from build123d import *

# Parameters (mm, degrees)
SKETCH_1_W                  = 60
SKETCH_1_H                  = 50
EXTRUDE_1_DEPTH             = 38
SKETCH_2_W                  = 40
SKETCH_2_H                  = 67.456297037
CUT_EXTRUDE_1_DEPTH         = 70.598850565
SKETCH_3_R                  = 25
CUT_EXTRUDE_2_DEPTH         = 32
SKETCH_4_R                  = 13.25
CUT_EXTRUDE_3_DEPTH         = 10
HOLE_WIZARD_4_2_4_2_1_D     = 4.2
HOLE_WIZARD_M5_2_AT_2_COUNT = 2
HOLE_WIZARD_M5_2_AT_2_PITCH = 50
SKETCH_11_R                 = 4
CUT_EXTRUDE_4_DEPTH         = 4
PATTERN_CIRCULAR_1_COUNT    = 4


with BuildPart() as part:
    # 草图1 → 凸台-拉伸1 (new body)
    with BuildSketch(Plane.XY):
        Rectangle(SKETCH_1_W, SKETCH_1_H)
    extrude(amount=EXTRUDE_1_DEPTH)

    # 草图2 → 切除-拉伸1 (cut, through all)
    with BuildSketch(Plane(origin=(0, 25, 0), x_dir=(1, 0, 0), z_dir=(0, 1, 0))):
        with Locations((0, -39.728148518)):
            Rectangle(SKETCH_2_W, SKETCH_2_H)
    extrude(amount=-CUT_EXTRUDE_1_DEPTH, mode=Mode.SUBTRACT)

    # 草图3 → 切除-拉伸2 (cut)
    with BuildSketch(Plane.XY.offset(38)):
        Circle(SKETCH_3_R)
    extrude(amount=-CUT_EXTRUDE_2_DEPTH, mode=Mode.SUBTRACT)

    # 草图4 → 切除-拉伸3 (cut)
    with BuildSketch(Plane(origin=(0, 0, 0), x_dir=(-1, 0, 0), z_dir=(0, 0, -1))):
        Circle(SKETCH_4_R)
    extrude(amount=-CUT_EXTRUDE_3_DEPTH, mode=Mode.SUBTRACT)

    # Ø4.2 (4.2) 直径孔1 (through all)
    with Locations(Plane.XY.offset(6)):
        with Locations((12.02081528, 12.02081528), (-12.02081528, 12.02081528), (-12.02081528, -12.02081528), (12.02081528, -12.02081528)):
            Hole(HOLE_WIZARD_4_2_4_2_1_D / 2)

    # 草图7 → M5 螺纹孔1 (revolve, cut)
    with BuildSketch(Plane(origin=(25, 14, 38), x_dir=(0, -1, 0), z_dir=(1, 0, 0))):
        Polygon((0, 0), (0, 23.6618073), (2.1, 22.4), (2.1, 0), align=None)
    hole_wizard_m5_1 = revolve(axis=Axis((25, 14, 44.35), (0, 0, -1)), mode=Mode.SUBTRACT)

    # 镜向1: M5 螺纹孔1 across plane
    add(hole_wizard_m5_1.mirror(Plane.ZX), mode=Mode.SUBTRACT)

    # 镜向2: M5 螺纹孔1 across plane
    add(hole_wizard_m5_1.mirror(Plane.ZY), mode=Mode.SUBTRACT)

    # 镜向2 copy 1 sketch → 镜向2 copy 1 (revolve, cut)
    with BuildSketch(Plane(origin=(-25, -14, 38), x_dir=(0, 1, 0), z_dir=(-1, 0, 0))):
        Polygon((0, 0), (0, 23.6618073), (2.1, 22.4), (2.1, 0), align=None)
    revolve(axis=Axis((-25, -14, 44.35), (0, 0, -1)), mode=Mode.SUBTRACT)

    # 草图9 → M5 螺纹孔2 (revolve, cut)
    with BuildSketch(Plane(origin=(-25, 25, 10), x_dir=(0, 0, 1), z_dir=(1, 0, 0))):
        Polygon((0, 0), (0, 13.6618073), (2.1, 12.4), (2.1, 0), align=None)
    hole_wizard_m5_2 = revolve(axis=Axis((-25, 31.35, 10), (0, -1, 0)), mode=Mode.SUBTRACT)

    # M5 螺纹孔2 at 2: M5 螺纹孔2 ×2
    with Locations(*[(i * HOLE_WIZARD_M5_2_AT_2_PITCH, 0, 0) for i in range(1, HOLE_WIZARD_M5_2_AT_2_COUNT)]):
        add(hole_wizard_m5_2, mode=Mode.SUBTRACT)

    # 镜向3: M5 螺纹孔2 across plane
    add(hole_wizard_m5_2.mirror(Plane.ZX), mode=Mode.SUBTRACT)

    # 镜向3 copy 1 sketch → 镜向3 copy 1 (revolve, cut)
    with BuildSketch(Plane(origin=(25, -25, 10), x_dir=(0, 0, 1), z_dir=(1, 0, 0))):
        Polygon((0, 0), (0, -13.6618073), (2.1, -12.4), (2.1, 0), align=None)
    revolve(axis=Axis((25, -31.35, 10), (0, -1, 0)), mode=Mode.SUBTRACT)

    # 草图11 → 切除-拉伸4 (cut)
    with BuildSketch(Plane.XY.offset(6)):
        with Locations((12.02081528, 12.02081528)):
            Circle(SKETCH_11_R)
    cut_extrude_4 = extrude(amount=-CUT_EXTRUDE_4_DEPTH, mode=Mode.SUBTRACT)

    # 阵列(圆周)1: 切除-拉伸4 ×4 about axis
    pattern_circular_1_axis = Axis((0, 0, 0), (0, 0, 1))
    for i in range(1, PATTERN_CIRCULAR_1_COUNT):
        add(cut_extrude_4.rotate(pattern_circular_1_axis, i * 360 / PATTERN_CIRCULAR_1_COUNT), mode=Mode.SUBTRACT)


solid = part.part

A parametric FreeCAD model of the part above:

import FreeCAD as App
import Part
import Sketcher

V = App.Vector
Q = App.Units.Quantity


def add_polygon(sketch, points):
    """Adds a closed chain of lines whose ends are joined by coincident constraints."""
    first, n = sketch.GeometryCount, len(points)
    for a, b in zip(points, points[1:] + points[:1]):
        sketch.addGeometry(Part.LineSegment(App.Vector(*a, 0), App.Vector(*b, 0)), False)
    for i in range(n):
        sketch.addConstraint(Sketcher.Constraint("Coincident", first + i, 2, first + (i + 1) % n, 1))

doc = App.newDocument("Part")
body = doc.addObject("PartDesign::Body", "Body")

# Sketch on XY plane
sketch1 = doc.addObject("Sketcher::SketchObject", "Sketch")
body.addObject(sketch1)
sketch1.AttachmentSupport = (doc.XY_Plane, [""])
sketch1.MapMode = "FlatFace"
add_polygon(sketch1, [(-30, 25), (-30, -25), (30, -25), (30, 25)])  # lines 0-3
sketch1.addConstraint([
    Sketcher.Constraint("Vertical", 0),
    Sketcher.Constraint("Horizontal", 1),
    Sketcher.Constraint("Vertical", 2),
    Sketcher.Constraint("Horizontal", 3),
    Sketcher.Constraint("Symmetric", 0, 2, 2, 2, -1, 1),
    Sketcher.Constraint("DistanceX", 1, 1, 1, 2, Q("60 mm")),
    Sketcher.Constraint("DistanceY", 0, 2, 0, 1, Q("50 mm")),
])
pad1 = doc.addObject("PartDesign::Pad", "Pad")
body.addObject(pad1)
pad1.Profile = sketch1
pad1.Length = 38

# Sketch on XZ plane
sketch2 = doc.addObject("Sketcher::SketchObject", "Sketch001")
body.addObject(sketch2)
sketch2.AttachmentSupport = (doc.XZ_Plane, [""])
sketch2.MapMode = "FlatFace"
sketch2.AttachmentOffset = App.Placement(V(0, 0, -25), App.Rotation())
add_polygon(sketch2, [(-20, 6), (-20, 73), (20, 73), (20, 6)])  # lines 0-3
sketch2.addConstraint([
    Sketcher.Constraint("Vertical", 0),
    Sketcher.Constraint("Horizontal", 1),
    Sketcher.Constraint("Vertical", 2),
    Sketcher.Constraint("Horizontal", 3),
    Sketcher.Constraint("DistanceX", 1, 1, 1, 2, Q("40 mm")),
    Sketcher.Constraint("DistanceX", 0, 2, -1, 1, Q("20 mm")),
    Sketcher.Constraint("DistanceY", -1, 1, 2, 2, Q("6 mm")),
    Sketcher.Constraint("DistanceY", 0, 1, 0, 2, Q("67.456297 mm")),
])
pocket1 = doc.addObject("PartDesign::Pocket", "Pocket")
body.addObject(pocket1)
pocket1.Profile = sketch2
pocket1.Type = "ThroughAll"
pocket1.Reversed = True

# Sketch on XY plane
sketch3 = doc.addObject("Sketcher::SketchObject", "Sketch002")
body.addObject(sketch3)
sketch3.AttachmentSupport = (doc.XY_Plane, [""])
sketch3.MapMode = "FlatFace"
sketch3.AttachmentOffset = App.Placement(V(0, 0, 38), App.Rotation())
sketch3.addGeometry(Part.Circle(V(0, 0, 0), V(0, 0, 1), 25), False)
sketch3.addConstraint([
    Sketcher.Constraint("Coincident", 0, 3, -1, 1),
    Sketcher.Constraint("Diameter", 0, Q("50 mm")),
])
pocket2 = doc.addObject("PartDesign::Pocket", "Pocket001")
body.addObject(pocket2)
pocket2.Profile = sketch3
pocket2.Length = 32

# Sketch on XY plane
sketch4 = doc.addObject("Sketcher::SketchObject", "Sketch003")
body.addObject(sketch4)
sketch4.AttachmentSupport = (doc.XY_Plane, [""])
sketch4.MapMode = "FlatFace"
sketch4.addGeometry(Part.Circle(V(0, 0, 0), V(0, 0, 1), 13), False)
sketch4.addConstraint([
    Sketcher.Constraint("Coincident", 0, 3, -1, 1),
    Sketcher.Constraint("Diameter", 0, Q("26.5 mm")),
])
pocket3 = doc.addObject("PartDesign::Pocket", "Pocket002")
body.addObject(pocket3)
pocket3.Profile = sketch4
pocket3.Length = 10
pocket3.Reversed = True

# Sketch on XY plane
sketch5 = doc.addObject("Sketcher::SketchObject", "Sketch004")
body.addObject(sketch5)
sketch5.AttachmentSupport = (doc.XY_Plane, [""])
sketch5.MapMode = "FlatFace"
sketch5.AttachmentOffset = App.Placement(V(0, 0, 6), App.Rotation())
sketch5.addGeometry([
    Part.Circle(V(12, 12, 0), V(0, 0, 1), 2.1),
    Part.Circle(V(-12, 12, 0), V(0, 0, 1), 2.1),
    Part.Circle(V(-12, -12, 0), V(0, 0, 1), 2.1),
    Part.Circle(V(12, -12, 0), V(0, 0, 1), 2.1),
], False)
sketch5.addConstraint([
    Sketcher.Constraint("Equal", 0, 1),
    Sketcher.Constraint("Equal", 1, 2),
    Sketcher.Constraint("Equal", 2, 3),
    Sketcher.Constraint("Symmetric", 0, 3, 2, 3, -1, 1),
    Sketcher.Constraint("Symmetric", 1, 3, 3, 3, -1, 1),
    Sketcher.Constraint("Symmetric", 0, 3, 1, 3, -2),
    Sketcher.Constraint("Diameter", 0, Q("4.2 mm")),
    Sketcher.Constraint("DistanceX", 1, 3, 0, 3, Q("24.041631 mm")),
    Sketcher.Constraint("DistanceY", 2, 3, 1, 3, Q("24.041631 mm")),
])
doc.recompute()
hole = doc.addObject("PartDesign::Hole", "Hole")
body.addObject(hole)
hole.Profile = sketch5
hole.ThreadType = "None"
hole.Diameter = 4.2
hole.DepthType = "ThroughAll"

# Sketch on YZ plane
sketch6 = doc.addObject("Sketcher::SketchObject", "Sketch005")
body.addObject(sketch6)
sketch6.AttachmentSupport = (doc.YZ_Plane, [""])
sketch6.MapMode = "FlatFace"
sketch6.AttachmentOffset = App.Placement(V(0, 0, 25), App.Rotation())
add_polygon(sketch6, [(14, 14.3), (14, 38), (11.9, 38), (11.9, 15.6)])  # lines 0-3
sketch6.addGeometry(Part.LineSegment(V(14, 38, 0), V(14, 14.3, 0)), True)  # axis
sketch6.addConstraint([
    Sketcher.Constraint("Vertical", 0),
    Sketcher.Constraint("Horizontal", 1),
    Sketcher.Constraint("Vertical", 2),
    Sketcher.Constraint("Vertical", 4),
    Sketcher.Constraint("Coincident", 4, 1, 0, 2),
    Sketcher.Constraint("Equal", 0, 4),
    Sketcher.Constraint("Angle", 3, Q("-31 deg")),
    Sketcher.Constraint("DistanceX", 1, 2, 1, 1, Q("2.1 mm")),
    Sketcher.Constraint("DistanceY", 2, 2, 2, 1, Q("22.4 mm")),
    Sketcher.Constraint("DistanceX", -1, 1, 0, 2, Q("14 mm")),
    Sketcher.Constraint("DistanceY", -1, 1, 0, 2, Q("38 mm")),
])
groove = doc.addObject("PartDesign::Groove", "Groove")
body.addObject(groove)
groove.Profile = sketch6
groove.ReferenceAxis = (sketch6, ["Axis0"])
groove.Angle = 360
doc.recompute()

mirrored = doc.addObject("PartDesign::Mirrored", "Mirrored")
body.addObject(mirrored)
mirrored.Originals = [groove]
mirrored.MirrorPlane = (doc.XZ_Plane, [""])
body.Tip = mirrored
doc.recompute()

mirrored2 = doc.addObject("PartDesign::Mirrored", "Mirrored001")
body.addObject(mirrored2)
mirrored2.Originals = [groove]
mirrored2.MirrorPlane = (doc.YZ_Plane, [""])
body.Tip = mirrored2

# Sketch on YZ plane
sketch7 = doc.addObject("Sketcher::SketchObject", "Sketch006")
body.addObject(sketch7)
sketch7.AttachmentSupport = (doc.YZ_Plane, [""])
sketch7.MapMode = "FlatFace"
sketch7.AttachmentOffset = App.Placement(V(0, 0, -25), App.Rotation())
add_polygon(sketch7, [(-14, 14.3), (-14, 38), (-11.9, 38), (-11.9, 15.6)])  # lines 0-3
sketch7.addGeometry(Part.LineSegment(V(-14, 38, 0), V(-14, 14.3, 0)), True)  # axis
sketch7.addConstraint([
    Sketcher.Constraint("Vertical", 0),
    Sketcher.Constraint("Horizontal", 1),
    Sketcher.Constraint("Vertical", 2),
    Sketcher.Constraint("Vertical", 4),
    Sketcher.Constraint("Coincident", 4, 1, 0, 2),
    Sketcher.Constraint("Equal", 0, 4),
    Sketcher.Constraint("Angle", 3, Q("-149 deg")),
    Sketcher.Constraint("DistanceX", 1, 1, 1, 2, Q("2.1 mm")),
    Sketcher.Constraint("DistanceY", 2, 2, 2, 1, Q("22.4 mm")),
    Sketcher.Constraint("DistanceX", 0, 2, -1, 1, Q("14 mm")),
    Sketcher.Constraint("DistanceY", -1, 1, 0, 2, Q("38 mm")),
])
groove2 = doc.addObject("PartDesign::Groove", "Groove001")
body.addObject(groove2)
groove2.Profile = sketch7
groove2.ReferenceAxis = (sketch7, ["Axis0"])
groove2.Angle = 360

# Sketch on YZ plane
sketch8 = doc.addObject("Sketcher::SketchObject", "Sketch007")
body.addObject(sketch8)
sketch8.AttachmentSupport = (doc.YZ_Plane, [""])
sketch8.MapMode = "FlatFace"
sketch8.AttachmentOffset = App.Placement(V(0, 0, -25), App.Rotation())
add_polygon(sketch8, [(11.3, 10), (25, 10), (25, 12.1), (12.6, 12.1)])  # lines 0-3
sketch8.addGeometry(Part.LineSegment(V(25, 10, 0), V(11.3, 10, 0)), True)  # axis
sketch8.addConstraint([
    Sketcher.Constraint("Horizontal", 0),
    Sketcher.Constraint("Vertical", 1),
    Sketcher.Constraint("Horizontal", 2),
    Sketcher.Constraint("Horizontal", 4),
    Sketcher.Constraint("Coincident", 4, 1, 0, 2),
    Sketcher.Constraint("Equal", 0, 4),
    Sketcher.Constraint("Angle", 3, Q("-121 deg")),
    Sketcher.Constraint("DistanceX", 2, 2, 2, 1, Q("12.4 mm")),
    Sketcher.Constraint("DistanceY", 1, 1, 1, 2, Q("2.1 mm")),
    Sketcher.Constraint("DistanceX", -1, 1, 0, 2, Q("25 mm")),
    Sketcher.Constraint("DistanceY", -1, 1, 0, 2, Q("10 mm")),
])
groove3 = doc.addObject("PartDesign::Groove", "Groove002")
body.addObject(groove3)
groove3.Profile = sketch8
groove3.ReferenceAxis = (sketch8, ["Axis0"])
groove3.Angle = 360
doc.recompute()

linearpattern = doc.addObject("PartDesign::LinearPattern", "LinearPattern")
body.addObject(linearpattern)
linearpattern.Originals = [groove3]
linearpattern.Direction = (doc.X_Axis, [""])
linearpattern.Mode = "offset"
linearpattern.Offset = 50
linearpattern.Occurrences = 2
body.Tip = linearpattern
doc.recompute()

mirrored3 = doc.addObject("PartDesign::Mirrored", "Mirrored002")
body.addObject(mirrored3)
mirrored3.Originals = [groove3]
mirrored3.MirrorPlane = (doc.XZ_Plane, [""])
body.Tip = mirrored3

# Sketch on YZ plane
sketch9 = doc.addObject("Sketcher::SketchObject", "Sketch008")
body.addObject(sketch9)
sketch9.AttachmentSupport = (doc.YZ_Plane, [""])
sketch9.MapMode = "FlatFace"
sketch9.AttachmentOffset = App.Placement(V(0, 0, 25), App.Rotation())
add_polygon(sketch9, [(-25, 10), (-11.3, 10), (-12.6, 12.1), (-25, 12.1)])  # lines 0-3
sketch9.addGeometry(Part.LineSegment(V(-11.3, 10, 0), V(-25, 10, 0)), True)  # axis
sketch9.addConstraint([
    Sketcher.Constraint("Horizontal", 0),
    Sketcher.Constraint("Horizontal", 2),
    Sketcher.Constraint("Vertical", 3),
    Sketcher.Constraint("Horizontal", 4),
    Sketcher.Constraint("Coincident", 4, 1, 0, 2),
    Sketcher.Constraint("Vertical", 2, 2, 4, 2),
    Sketcher.Constraint("Angle", 1, Q("121 deg")),
    Sketcher.Constraint("DistanceX", 2, 2, 2, 1, Q("12.4 mm")),
    Sketcher.Constraint("DistanceY", 3, 2, 3, 1, Q("2.1 mm")),
    Sketcher.Constraint("DistanceY", -1, 1, 0, 2, Q("10 mm")),
    Sketcher.Constraint("DistanceX", 2, 2, -1, 1, Q("25 mm")),
])
groove4 = doc.addObject("PartDesign::Groove", "Groove003")
body.addObject(groove4)
groove4.Profile = sketch9
groove4.ReferenceAxis = (sketch9, ["Axis0"])
groove4.Angle = 360

# Sketch on XY plane
sketch10 = doc.addObject("Sketcher::SketchObject", "Sketch009")
body.addObject(sketch10)
sketch10.AttachmentSupport = (doc.XY_Plane, [""])
sketch10.MapMode = "FlatFace"
sketch10.AttachmentOffset = App.Placement(V(0, 0, 6), App.Rotation())
sketch10.addGeometry(Part.Circle(V(12, 12, 0), V(0, 0, 1), 4), False)
sketch10.addConstraint([
    Sketcher.Constraint("Diameter", 0, Q("8 mm")),
    Sketcher.Constraint("DistanceX", -1, 1, 0, 3, Q("12.020815 mm")),
    Sketcher.Constraint("DistanceY", -1, 1, 0, 3, Q("12.020815 mm")),
])
pocket4 = doc.addObject("PartDesign::Pocket", "Pocket003")
body.addObject(pocket4)
pocket4.Profile = sketch10
pocket4.Length = 4
doc.recompute()

polarpattern = doc.addObject("PartDesign::PolarPattern", "PolarPattern")
body.addObject(polarpattern)
polarpattern.Originals = [pocket4]
polarpattern.Axis = (doc.Z_Axis, [""])
polarpattern.Angle = 360
polarpattern.Occurrences = 4
body.Tip = polarpattern

doc.recompute()
